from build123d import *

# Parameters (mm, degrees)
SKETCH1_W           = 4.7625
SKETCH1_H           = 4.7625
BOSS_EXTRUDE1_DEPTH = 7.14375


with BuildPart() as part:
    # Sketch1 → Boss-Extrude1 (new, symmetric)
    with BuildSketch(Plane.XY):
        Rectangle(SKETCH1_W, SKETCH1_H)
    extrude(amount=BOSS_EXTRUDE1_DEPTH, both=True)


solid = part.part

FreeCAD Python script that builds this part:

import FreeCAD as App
import Part
import Sketcher

V = App.Vector
Q = App.Units.Quantity


def add_polygon(sketch, points):
    """Adds a closed chain of lines whose ends are joined by coincident constraints."""
    first, n = sketch.GeometryCount, len(points)
    for a, b in zip(points, points[1:] + points[:1]):
        sketch.addGeometry(Part.LineSegment(App.Vector(*a, 0), App.Vector(*b, 0)), False)
    for i in range(n):
        sketch.addConstraint(Sketcher.Constraint("Coincident", first + i, 2, first + (i + 1) % n, 1))

doc = App.newDocument("Part")
body = doc.addObject("PartDesign::Body", "Body")

# Sketch on XY plane
sketch1 = doc.addObject("Sketcher::SketchObject", "Sketch")
body.addObject(sketch1)
sketch1.AttachmentSupport = (doc.XY_Plane, [""])
sketch1.MapMode = "FlatFace"
add_polygon(sketch1, [(-2.4, 2.4), (-2.4, -2.4), (2.4, -2.4), (2.4, 2.4)])  # lines 0-3
sketch1.addConstraint([
    Sketcher.Constraint("Vertical", 0),
    Sketcher.Constraint("Horizontal", 1),
    Sketcher.Constraint("Vertical", 2),
    Sketcher.Constraint("Horizontal", 3),
    Sketcher.Constraint("Symmetric", 0, 2, 2, 2, -1, 1),
    Sketcher.Constraint("Equal", 3, 0),
    Sketcher.Constraint("DistanceX", 1, 1, 1, 2, Q("0.1875 in")),
])
pad1 = doc.addObject("PartDesign::Pad", "Pad")
body.addObject(pad1)
pad1.Profile = sketch1
pad1.Length = Q("0.5625 in")
pad1.Midplane = True

doc.recompute()
